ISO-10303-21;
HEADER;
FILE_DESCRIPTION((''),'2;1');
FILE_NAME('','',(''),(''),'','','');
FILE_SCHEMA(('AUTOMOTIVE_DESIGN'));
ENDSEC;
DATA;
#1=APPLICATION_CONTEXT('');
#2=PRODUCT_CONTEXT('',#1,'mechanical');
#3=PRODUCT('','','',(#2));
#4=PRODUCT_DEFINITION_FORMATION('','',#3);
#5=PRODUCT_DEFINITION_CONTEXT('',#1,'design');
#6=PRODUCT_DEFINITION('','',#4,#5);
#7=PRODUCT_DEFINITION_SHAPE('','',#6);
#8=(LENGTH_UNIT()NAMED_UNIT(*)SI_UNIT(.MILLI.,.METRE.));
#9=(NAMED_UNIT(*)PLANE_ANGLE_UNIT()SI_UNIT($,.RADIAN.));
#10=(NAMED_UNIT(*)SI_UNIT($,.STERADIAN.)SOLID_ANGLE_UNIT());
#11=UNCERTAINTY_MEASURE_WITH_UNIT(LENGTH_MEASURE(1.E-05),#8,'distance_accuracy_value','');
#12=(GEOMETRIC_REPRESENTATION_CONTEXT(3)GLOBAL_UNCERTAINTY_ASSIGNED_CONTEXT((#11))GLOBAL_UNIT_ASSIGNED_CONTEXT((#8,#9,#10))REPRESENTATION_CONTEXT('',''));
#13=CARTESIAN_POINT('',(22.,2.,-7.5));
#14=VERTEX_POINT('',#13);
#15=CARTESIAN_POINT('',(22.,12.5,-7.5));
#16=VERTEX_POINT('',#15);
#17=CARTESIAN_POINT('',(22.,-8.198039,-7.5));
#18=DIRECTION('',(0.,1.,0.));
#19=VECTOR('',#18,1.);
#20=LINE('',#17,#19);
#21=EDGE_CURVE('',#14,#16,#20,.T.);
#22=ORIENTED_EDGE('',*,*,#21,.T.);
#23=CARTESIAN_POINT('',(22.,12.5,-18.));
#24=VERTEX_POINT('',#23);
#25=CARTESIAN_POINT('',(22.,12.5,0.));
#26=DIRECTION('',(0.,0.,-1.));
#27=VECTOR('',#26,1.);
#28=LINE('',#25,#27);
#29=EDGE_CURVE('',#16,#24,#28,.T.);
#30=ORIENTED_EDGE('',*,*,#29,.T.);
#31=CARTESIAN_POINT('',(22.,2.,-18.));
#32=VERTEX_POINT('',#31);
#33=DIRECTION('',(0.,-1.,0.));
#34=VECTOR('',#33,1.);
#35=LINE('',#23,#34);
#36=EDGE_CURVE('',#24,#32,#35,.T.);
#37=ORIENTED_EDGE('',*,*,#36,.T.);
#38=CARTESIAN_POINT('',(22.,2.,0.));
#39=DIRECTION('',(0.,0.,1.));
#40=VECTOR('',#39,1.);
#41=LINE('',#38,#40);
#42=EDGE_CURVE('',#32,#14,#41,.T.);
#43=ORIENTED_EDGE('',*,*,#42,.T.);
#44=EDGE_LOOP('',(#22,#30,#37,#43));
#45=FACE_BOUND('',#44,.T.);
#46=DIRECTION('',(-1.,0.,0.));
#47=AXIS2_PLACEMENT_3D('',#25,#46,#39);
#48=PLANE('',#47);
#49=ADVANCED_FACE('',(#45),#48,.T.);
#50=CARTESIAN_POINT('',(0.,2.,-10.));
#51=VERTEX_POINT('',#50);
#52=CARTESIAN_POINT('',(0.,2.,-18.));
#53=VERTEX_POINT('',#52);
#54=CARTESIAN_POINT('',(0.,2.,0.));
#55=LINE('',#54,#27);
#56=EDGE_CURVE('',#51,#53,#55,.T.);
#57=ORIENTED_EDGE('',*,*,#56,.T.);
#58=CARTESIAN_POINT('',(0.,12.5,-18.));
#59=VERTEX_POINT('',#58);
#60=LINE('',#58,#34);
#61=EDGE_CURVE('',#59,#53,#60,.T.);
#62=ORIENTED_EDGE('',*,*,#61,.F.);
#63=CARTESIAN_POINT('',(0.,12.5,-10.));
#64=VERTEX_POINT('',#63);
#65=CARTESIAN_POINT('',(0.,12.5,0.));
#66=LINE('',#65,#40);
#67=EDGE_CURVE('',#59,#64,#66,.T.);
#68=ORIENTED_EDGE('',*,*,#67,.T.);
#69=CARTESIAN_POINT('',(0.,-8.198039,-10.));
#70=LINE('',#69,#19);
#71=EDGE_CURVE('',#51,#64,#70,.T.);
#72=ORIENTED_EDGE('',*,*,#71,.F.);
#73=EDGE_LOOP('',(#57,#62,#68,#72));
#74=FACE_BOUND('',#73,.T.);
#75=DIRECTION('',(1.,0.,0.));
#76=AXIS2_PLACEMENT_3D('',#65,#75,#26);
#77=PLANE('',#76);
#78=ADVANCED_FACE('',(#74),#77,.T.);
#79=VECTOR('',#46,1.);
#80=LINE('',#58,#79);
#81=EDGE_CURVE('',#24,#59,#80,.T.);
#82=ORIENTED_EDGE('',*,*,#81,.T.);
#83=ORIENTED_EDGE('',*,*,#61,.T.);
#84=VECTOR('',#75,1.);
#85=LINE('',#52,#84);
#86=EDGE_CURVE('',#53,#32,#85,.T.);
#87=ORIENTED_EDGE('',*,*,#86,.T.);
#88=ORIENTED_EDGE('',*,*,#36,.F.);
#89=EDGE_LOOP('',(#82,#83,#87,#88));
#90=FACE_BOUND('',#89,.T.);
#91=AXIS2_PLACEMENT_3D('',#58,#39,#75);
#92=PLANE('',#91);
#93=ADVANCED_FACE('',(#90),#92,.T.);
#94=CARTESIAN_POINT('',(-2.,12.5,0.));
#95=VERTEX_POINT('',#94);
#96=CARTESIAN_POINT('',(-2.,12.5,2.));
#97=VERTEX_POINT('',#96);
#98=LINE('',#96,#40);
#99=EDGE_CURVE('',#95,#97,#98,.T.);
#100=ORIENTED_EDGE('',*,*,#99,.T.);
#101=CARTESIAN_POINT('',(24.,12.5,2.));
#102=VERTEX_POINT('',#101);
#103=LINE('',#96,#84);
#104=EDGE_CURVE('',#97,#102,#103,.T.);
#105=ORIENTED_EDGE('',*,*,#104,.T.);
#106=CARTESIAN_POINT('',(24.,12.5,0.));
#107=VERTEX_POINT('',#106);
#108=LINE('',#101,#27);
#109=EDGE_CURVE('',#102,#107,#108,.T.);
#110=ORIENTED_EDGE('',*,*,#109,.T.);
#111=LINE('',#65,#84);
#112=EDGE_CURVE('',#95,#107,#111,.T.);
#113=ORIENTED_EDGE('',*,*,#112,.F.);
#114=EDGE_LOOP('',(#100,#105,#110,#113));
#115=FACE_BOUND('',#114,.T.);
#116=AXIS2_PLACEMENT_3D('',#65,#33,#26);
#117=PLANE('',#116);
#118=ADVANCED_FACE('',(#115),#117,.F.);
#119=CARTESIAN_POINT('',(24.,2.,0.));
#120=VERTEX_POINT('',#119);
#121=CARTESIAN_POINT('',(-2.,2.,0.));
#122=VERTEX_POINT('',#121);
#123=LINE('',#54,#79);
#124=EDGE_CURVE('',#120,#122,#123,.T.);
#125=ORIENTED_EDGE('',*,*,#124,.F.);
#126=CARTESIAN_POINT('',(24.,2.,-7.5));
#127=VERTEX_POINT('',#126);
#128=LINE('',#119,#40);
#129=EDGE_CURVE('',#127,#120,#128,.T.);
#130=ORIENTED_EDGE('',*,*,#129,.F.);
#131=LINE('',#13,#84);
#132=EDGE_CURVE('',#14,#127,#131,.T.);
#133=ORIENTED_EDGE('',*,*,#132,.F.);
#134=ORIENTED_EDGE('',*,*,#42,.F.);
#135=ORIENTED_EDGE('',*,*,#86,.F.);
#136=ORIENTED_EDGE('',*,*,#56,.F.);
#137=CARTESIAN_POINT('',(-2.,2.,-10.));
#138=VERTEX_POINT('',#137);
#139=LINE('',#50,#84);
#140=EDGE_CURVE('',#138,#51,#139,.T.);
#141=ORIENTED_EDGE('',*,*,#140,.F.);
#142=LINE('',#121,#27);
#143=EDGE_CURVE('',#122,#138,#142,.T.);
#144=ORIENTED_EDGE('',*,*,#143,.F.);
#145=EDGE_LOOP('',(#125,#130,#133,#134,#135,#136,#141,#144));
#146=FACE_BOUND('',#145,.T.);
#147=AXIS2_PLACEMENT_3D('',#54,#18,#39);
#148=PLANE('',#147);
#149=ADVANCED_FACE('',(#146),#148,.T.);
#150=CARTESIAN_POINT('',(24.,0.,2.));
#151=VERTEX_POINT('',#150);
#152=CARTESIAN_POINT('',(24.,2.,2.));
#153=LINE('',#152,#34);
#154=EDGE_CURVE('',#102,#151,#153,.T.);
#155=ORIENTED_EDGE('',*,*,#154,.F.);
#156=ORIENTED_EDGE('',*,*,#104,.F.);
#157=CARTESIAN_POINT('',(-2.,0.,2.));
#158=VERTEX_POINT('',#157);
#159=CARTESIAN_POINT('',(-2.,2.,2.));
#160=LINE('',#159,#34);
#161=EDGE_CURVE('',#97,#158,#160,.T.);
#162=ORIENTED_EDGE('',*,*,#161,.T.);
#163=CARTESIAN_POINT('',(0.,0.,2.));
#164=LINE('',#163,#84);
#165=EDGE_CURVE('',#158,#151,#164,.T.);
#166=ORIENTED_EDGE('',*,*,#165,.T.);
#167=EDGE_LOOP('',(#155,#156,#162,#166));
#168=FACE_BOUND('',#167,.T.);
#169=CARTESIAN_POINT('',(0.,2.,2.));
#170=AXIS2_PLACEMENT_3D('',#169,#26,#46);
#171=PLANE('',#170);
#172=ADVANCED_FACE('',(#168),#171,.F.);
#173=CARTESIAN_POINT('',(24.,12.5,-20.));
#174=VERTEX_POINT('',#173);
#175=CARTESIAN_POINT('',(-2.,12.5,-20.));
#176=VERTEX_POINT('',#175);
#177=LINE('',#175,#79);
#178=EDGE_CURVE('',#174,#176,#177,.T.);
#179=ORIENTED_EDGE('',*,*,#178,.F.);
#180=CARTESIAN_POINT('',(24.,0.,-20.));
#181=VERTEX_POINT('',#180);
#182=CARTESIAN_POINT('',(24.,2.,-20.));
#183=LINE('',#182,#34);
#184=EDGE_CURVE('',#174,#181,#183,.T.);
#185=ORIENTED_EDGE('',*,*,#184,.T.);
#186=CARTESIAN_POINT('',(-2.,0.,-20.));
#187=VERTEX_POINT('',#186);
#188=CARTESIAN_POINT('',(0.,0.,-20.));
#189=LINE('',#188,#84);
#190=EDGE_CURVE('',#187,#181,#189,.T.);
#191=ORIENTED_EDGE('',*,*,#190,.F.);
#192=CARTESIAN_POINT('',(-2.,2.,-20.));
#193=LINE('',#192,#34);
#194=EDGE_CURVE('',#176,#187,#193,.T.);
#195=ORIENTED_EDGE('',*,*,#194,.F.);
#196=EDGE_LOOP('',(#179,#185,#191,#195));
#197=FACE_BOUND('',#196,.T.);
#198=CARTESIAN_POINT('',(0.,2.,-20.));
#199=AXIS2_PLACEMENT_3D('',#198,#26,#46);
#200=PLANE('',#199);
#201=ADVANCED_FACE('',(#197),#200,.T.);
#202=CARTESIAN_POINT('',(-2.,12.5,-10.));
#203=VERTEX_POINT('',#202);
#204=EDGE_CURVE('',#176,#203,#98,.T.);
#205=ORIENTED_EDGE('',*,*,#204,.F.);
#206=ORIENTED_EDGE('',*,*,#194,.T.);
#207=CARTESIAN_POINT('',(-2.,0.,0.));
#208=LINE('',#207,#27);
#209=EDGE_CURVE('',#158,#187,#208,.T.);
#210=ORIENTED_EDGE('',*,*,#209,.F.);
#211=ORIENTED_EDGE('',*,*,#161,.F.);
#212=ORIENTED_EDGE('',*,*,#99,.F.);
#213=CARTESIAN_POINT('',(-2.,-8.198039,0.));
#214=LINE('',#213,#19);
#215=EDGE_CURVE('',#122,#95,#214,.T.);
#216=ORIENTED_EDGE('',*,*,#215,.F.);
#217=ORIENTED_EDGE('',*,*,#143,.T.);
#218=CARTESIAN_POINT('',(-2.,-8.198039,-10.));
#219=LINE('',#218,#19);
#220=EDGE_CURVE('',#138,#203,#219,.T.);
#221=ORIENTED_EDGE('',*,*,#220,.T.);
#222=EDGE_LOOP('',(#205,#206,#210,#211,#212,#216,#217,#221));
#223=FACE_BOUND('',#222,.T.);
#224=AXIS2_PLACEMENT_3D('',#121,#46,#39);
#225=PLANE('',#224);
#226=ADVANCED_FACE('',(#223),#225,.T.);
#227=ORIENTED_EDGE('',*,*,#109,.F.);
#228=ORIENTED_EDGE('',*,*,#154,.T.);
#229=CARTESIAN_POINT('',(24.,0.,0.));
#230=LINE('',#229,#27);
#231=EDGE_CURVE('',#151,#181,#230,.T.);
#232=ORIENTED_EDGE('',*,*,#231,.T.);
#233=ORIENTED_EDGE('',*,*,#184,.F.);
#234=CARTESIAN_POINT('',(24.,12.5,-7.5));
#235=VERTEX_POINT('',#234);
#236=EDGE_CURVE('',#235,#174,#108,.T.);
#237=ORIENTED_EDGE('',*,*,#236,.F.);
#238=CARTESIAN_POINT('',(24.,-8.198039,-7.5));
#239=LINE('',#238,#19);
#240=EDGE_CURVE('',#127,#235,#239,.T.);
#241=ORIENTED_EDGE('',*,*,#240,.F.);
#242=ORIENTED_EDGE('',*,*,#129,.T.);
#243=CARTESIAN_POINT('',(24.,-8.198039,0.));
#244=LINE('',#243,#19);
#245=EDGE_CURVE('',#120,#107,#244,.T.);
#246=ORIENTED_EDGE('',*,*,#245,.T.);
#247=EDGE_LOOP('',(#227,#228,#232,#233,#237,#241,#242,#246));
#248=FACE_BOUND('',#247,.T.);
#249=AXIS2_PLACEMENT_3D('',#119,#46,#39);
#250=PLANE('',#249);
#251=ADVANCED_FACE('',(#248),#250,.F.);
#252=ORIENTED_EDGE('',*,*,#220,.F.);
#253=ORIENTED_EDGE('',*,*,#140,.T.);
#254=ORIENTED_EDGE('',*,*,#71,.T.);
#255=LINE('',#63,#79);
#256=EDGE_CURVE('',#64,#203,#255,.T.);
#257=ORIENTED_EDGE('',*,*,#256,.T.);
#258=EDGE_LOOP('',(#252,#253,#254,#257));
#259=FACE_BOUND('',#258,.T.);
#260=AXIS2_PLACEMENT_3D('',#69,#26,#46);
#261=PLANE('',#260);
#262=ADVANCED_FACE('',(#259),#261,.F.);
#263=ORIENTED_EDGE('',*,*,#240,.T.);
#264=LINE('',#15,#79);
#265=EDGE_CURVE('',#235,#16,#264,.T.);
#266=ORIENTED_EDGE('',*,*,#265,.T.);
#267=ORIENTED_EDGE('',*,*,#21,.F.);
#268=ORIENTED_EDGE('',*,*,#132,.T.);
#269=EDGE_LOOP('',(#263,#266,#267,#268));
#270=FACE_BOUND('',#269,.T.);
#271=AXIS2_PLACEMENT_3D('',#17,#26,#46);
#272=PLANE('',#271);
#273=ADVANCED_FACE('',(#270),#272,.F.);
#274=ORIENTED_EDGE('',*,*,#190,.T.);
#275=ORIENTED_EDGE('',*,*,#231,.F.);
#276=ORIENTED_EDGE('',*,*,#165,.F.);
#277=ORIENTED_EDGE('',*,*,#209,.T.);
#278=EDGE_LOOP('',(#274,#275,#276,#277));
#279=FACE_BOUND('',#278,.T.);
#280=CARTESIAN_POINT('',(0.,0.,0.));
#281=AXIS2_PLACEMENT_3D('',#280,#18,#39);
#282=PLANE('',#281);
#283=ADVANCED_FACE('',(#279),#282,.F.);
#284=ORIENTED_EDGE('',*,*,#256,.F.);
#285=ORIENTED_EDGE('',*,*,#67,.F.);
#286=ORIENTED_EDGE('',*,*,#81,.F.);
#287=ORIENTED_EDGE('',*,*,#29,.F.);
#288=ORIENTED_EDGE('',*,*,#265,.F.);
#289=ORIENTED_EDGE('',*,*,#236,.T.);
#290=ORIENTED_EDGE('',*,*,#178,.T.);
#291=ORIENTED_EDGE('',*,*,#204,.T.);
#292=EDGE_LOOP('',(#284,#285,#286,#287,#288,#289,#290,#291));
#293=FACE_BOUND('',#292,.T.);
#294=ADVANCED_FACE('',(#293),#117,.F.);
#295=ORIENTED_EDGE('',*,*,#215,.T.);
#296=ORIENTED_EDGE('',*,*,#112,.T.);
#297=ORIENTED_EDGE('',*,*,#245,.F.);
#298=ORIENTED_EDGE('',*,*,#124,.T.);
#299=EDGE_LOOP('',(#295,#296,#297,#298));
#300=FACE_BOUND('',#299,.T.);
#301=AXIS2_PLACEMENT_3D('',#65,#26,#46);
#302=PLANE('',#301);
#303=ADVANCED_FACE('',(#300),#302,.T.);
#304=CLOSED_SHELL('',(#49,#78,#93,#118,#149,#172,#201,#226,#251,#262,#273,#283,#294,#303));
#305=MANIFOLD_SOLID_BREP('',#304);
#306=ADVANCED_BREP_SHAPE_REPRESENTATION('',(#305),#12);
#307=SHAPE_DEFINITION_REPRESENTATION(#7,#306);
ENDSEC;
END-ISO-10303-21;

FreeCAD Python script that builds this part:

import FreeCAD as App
import Part
import Sketcher

V = App.Vector
Q = App.Units.Quantity


def add_polygon(sketch, points):
    """Adds a closed chain of lines whose ends are joined by coincident constraints."""
    first, n = sketch.GeometryCount, len(points)
    for a, b in zip(points, points[1:] + points[:1]):
        sketch.addGeometry(Part.LineSegment(App.Vector(*a, 0), App.Vector(*b, 0)), False)
    for i in range(n):
        sketch.addConstraint(Sketcher.Constraint("Coincident", first + i, 2, first + (i + 1) % n, 1))

doc = App.newDocument("Part")
params = doc.addObject("Spreadsheet::Sheet", "Params")
for row, (alias, value) in enumerate([
    ("sketch1_width", "26 mm"),
    ("sketch1_height", "22 mm"),
    ("pad1_length", "2 mm"),
    ("sketch2_width", "26 mm"),
    ("sketch2_width2", "22 mm"),
    ("sketch2_height", "18 mm"),
    ("pad2_length", "12.5 mm"),
    ("sketch3_width", "2 mm"),
    ("sketch3_height", "10 mm"),
    ("sketch3_height2", "7.5 mm"),
    ("pocket1_length", "10.5 mm"),
], start=1):
    params.set(f"A{row}", alias)
    params.set(f"B{row}", "=" + value)
    params.setAlias(f"B{row}", alias)

body = doc.addObject("PartDesign::Body", "Body")

# Sketch on XZ plane
sketch1 = body.newObject("Sketcher::SketchObject", "Sketch")
sketch1.AttachmentSupport = (doc.getObject("XZ_Plane"), [""])
sketch1.MapMode = "FlatFace"
add_polygon(sketch1, [(-2, -20), (-2, 2), (24, 2), (24, -20)])  # lines 0-3
sketch1.addConstraint([
    Sketcher.Constraint("Vertical", 0),
    Sketcher.Constraint("Horizontal", 1),
    Sketcher.Constraint("Vertical", 2),
    Sketcher.Constraint("Horizontal", 3),
    Sketcher.Constraint("DistanceX", 1, 1, 1, 2, Q("26 mm")),
    Sketcher.Constraint("DistanceY", 0, 1, 0, 2, Q("22 mm")),
    Sketcher.Constraint("DistanceX", 0, 2, -1, 1, Q("2 mm")),
    Sketcher.Constraint("DistanceY", -1, 1, 0, 2, Q("2 mm")),
])
sketch1.setExpression("Constraints[8]", "Params.sketch1_width")
sketch1.setExpression("Constraints[9]", "Params.sketch1_height")
pad1 = body.newObject("PartDesign::Pad", "Pad")
pad1.Profile = sketch1
pad1.setExpression("Length", "Params.pad1_length")
pad1.Reversed = True

# Sketch on XZ plane
sketch2 = body.newObject("Sketcher::SketchObject", "Sketch001")
sketch2.AttachmentSupport = (doc.getObject("XZ_Plane"), [""])
sketch2.MapMode = "FlatFace"
add_polygon(sketch2, [(-2, -20), (-2, 2), (24, 2), (24, -20)])  # lines 0-3
add_polygon(sketch2, [(22, 0), (0, 0), (0, -18), (22, -18)])  # lines 4-7
sketch2.addConstraint([
    Sketcher.Constraint("Vertical", 0),
    Sketcher.Constraint("Horizontal", 1),
    Sketcher.Constraint("Vertical", 2),
    Sketcher.Constraint("Horizontal", 3),
    Sketcher.Constraint("Horizontal", 4),
    Sketcher.Constraint("Vertical", 5),
    Sketcher.Constraint("Horizontal", 6),
    Sketcher.Constraint("Vertical", 7),
    Sketcher.Constraint("Coincident", 4, 2, -1, 1),
    Sketcher.Constraint("Equal", 6, 0),
    Sketcher.Constraint("DistanceX", 1, 1, 1, 2, Q("26 mm")),
    Sketcher.Constraint("DistanceX", 4, 2, 4, 1, Q("22 mm")),
    Sketcher.Constraint("DistanceY", 5, 2, 5, 1, Q("18 mm")),
    Sketcher.Constraint("DistanceX", 0, 2, -1, 1, Q("2 mm")),
    Sketcher.Constraint("DistanceY", -1, 1, 0, 2, Q("2 mm")),
])
sketch2.setExpression("Constraints[18]", "Params.sketch2_width")
sketch2.setExpression("Constraints[19]", "Params.sketch2_width2")
sketch2.setExpression("Constraints[20]", "Params.sketch2_height")
pad2 = body.newObject("PartDesign::Pad", "Pad001")
pad2.Profile = sketch2
pad2.setExpression("Length", "Params.pad2_length")
pad2.Reversed = True

# Sketch on XZ plane
sketch3 = body.newObject("Sketcher::SketchObject", "Sketch002")
sketch3.AttachmentSupport = (doc.getObject("XZ_Plane"), [""])
sketch3.MapMode = "FlatFace"
sketch3.AttachmentOffset = App.Placement(V(0, 0, -12.5), App.Rotation())
add_polygon(sketch3, [(-2, -10), (-2, 0), (0, 0), (0, -10)])  # lines 0-3
add_polygon(sketch3, [(22, -7.5), (22, 0), (24, 0), (24, -7.5)])  # lines 4-7
sketch3.addConstraint([
    Sketcher.Constraint("Vertical", 0),
    Sketcher.Constraint("Horizontal", 1),
    Sketcher.Constraint("Vertical", 2),
    Sketcher.Constraint("Horizontal", 3),
    Sketcher.Constraint("Vertical", 4),
    Sketcher.Constraint("Horizontal", 5),
    Sketcher.Constraint("Vertical", 6),
    Sketcher.Constraint("Horizontal", 7),
    Sketcher.Constraint("Coincident", 1, 2, -1, 1),
    Sketcher.Constraint("PointOnObject", 4, 2, -1),
    Sketcher.Constraint("Equal", 3, 5),
    Sketcher.Constraint("DistanceX", 1, 1, 1, 2, Q("2 mm")),
    Sketcher.Constraint("DistanceY", 0, 1, 0, 2, Q("10 mm")),
    Sketcher.Constraint("DistanceY", 4, 1, 4, 2, Q("7.5 mm")),
    Sketcher.Constraint("DistanceX", -1, 1, 4, 2, Q("22 mm")),
])
sketch3.setExpression("Constraints[19]", "Params.sketch3_width")
sketch3.setExpression("Constraints[20]", "Params.sketch3_height")
sketch3.setExpression("Constraints[21]", "Params.sketch3_height2")
pocket1 = body.newObject("PartDesign::Pocket", "Pocket")
pocket1.Profile = sketch3
pocket1.setExpression("Length", "Params.pocket1_length")
pocket1.Reversed = True

doc.recompute()
